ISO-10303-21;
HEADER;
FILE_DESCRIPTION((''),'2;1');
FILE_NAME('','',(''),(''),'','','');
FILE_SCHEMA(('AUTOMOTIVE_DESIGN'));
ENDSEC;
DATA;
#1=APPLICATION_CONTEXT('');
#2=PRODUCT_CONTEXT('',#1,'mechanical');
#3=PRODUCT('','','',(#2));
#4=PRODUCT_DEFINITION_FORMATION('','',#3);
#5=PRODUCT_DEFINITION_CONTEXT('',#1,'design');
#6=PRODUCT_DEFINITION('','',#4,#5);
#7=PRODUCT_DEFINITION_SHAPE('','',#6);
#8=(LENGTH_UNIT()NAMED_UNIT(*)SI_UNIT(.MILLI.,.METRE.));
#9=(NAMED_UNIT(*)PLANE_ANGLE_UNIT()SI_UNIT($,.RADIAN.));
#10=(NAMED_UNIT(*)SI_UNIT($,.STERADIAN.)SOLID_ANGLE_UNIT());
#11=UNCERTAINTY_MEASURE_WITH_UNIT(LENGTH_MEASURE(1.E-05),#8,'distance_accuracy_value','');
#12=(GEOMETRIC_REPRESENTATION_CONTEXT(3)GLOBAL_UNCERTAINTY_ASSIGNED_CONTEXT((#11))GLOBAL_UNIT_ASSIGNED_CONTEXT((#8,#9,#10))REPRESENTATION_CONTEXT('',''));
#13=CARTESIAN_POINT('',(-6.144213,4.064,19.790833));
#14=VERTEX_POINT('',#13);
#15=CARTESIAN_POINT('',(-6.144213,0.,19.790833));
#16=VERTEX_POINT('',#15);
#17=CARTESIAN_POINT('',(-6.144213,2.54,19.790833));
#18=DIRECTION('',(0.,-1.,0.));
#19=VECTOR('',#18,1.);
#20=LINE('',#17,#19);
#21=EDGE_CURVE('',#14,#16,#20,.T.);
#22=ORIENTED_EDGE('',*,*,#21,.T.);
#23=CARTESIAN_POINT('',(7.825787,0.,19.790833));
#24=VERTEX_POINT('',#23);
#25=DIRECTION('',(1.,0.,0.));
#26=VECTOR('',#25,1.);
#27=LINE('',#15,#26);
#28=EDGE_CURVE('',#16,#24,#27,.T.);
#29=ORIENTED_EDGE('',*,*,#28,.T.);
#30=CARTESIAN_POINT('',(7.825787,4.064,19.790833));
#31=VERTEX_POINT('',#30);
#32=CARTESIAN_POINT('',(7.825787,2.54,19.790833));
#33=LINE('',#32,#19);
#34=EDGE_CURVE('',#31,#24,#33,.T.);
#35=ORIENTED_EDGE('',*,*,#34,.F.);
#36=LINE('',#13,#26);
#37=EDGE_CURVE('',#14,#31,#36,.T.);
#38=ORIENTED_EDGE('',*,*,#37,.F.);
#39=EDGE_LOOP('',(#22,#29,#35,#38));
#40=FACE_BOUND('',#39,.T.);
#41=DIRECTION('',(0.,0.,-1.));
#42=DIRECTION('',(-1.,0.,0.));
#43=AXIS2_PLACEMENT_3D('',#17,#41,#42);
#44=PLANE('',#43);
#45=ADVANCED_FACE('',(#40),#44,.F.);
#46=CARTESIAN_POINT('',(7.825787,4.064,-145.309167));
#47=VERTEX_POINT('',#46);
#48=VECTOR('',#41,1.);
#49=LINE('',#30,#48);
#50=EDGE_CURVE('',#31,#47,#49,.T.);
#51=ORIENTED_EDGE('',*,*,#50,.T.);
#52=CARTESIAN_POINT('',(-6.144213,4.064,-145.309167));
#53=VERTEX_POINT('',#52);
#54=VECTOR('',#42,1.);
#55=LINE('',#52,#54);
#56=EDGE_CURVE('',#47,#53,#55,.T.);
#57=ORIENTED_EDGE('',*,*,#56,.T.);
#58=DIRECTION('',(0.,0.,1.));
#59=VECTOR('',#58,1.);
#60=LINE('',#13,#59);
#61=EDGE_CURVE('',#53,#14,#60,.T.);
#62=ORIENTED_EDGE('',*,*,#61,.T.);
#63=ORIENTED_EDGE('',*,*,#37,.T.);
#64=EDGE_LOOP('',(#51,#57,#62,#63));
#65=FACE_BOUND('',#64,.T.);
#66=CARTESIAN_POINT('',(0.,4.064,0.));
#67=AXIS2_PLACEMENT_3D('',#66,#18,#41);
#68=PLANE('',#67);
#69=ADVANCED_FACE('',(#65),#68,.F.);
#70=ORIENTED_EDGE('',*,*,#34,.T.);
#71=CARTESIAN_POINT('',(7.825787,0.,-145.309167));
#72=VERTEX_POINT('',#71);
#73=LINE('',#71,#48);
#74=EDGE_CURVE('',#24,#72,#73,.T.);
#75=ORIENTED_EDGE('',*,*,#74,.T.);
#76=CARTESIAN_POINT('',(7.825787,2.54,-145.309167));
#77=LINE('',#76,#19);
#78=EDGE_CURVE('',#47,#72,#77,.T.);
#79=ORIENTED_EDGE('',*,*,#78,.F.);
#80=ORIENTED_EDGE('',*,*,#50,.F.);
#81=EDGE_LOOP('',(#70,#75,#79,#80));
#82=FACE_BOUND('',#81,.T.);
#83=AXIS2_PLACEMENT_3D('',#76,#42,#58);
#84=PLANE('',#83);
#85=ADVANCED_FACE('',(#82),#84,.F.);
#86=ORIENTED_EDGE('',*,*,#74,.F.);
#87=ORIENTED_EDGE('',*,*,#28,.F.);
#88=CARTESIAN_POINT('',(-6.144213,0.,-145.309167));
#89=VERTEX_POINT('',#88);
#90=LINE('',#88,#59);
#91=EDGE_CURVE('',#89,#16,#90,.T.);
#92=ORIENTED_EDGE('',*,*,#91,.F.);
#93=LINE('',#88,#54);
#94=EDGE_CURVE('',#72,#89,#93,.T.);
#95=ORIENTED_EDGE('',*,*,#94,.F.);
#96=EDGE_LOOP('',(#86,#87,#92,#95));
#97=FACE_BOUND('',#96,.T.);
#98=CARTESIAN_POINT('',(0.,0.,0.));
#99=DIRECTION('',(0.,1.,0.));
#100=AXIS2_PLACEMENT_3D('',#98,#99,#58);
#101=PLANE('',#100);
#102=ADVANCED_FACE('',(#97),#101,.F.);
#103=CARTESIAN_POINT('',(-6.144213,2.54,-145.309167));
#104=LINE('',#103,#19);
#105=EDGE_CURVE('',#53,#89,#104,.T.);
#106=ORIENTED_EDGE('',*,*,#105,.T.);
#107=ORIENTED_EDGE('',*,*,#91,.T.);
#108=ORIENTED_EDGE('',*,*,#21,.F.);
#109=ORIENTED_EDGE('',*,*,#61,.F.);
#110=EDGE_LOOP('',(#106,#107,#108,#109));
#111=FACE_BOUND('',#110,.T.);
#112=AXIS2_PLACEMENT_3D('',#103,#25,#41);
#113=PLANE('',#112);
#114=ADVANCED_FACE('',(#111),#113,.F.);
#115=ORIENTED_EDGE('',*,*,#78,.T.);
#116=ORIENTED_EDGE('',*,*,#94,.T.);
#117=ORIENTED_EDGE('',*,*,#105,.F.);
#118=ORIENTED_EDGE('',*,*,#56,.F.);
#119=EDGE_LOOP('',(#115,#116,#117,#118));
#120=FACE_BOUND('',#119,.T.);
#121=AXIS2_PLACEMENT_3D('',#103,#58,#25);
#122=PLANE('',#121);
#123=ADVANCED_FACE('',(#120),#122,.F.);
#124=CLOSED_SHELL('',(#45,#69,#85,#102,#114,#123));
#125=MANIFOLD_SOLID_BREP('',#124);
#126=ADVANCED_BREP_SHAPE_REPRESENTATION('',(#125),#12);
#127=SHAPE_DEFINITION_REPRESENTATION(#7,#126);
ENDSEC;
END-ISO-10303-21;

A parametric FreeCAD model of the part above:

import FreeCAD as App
import Part
import Sketcher
from FreeCAD import Vector
Q = App.Units.Quantity

doc = App.newDocument("Part")
params = doc.addObject("Spreadsheet::Sheet", "Params")
for row, (alias, value) in enumerate([
    ("sketch1_height", "6.5 in"),
    ("sketch1_width", "0.55 in"),
    ("pad1_length", "0.1 in"),
    ("sketch2_height", "6.5 in"),
    ("sketch2_width", "0.55 in"),
    ("pad2_length", "0.06 in"),
], start=1):
    params.set(f"A{row}", alias)
    params.set(f"B{row}", "=" + value)
    params.setAlias(f"B{row}", alias)

body = doc.addObject("PartDesign::Body", "Body")

# Sketch on XZ plane
sketch1 = body.newObject("Sketcher::SketchObject", "Sketch")
sketch1.AttachmentSupport = (doc.getObject("XZ_Plane"), [""])
sketch1.MapMode = "FlatFace"
sketch1.addGeometry([
    Part.LineSegment(Vector(-6, -145, 0), Vector(-6, 20, 0)),
    Part.LineSegment(Vector(-6, 20, 0), Vector(8, 20, 0)),
    Part.LineSegment(Vector(8, 20, 0), Vector(8, -145, 0)),
    Part.LineSegment(Vector(8, -145, 0), Vector(-6, -145, 0)),
], False)
sketch1.addConstraint([
    Sketcher.Constraint("Coincident", 0, 2, 1, 1),
    Sketcher.Constraint("Coincident", 1, 2, 2, 1),
    Sketcher.Constraint("Coincident", 2, 2, 3, 1),
    Sketcher.Constraint("Coincident", 3, 2, 0, 1),
    Sketcher.Constraint("Vertical", 0),
    Sketcher.Constraint("Horizontal", 1),
    Sketcher.Constraint("Vertical", 2),
    Sketcher.Constraint("Horizontal", 3),
    Sketcher.Constraint("DistanceY", 0, 1, 0, 2, Q("6.5 in")),
    Sketcher.Constraint("DistanceX", 1, 1, 1, 2, Q("0.55 in")),
    Sketcher.Constraint("DistanceX", 0, 2, -1, 1, Q("6.144213 mm")),
    Sketcher.Constraint("DistanceY", -1, 1, 0, 2, Q("19.790833 mm")),
])
sketch1.setExpression("Constraints[8]", "Params.sketch1_height")
sketch1.setExpression("Constraints[9]", "Params.sketch1_width")
pad1 = body.newObject("PartDesign::Pad", "Pad")
pad1.Profile = sketch1
pad1.setExpression("Length", "Params.pad1_length")
pad1.Reversed = True

# Sketch on XZ plane
sketch2 = body.newObject("Sketcher::SketchObject", "Sketch001")
sketch2.AttachmentSupport = (doc.getObject("XZ_Plane"), [""])
sketch2.MapMode = "FlatFace"
sketch2.AttachmentOffset = App.Placement(Vector(0, 0, -0.1 * 25.4), App.Rotation())
sketch2.addGeometry([
    Part.LineSegment(Vector(-6, -145, 0), Vector(-6, 20, 0)),
    Part.LineSegment(Vector(-6, 20, 0), Vector(8, 20, 0)),
    Part.LineSegment(Vector(8, 20, 0), Vector(8, -145, 0)),
    Part.LineSegment(Vector(8, -145, 0), Vector(-6, -145, 0)),
], False)
sketch2.addConstraint([
    Sketcher.Constraint("Coincident", 0, 2, 1, 1),
    Sketcher.Constraint("Coincident", 1, 2, 2, 1),
    Sketcher.Constraint("Coincident", 2, 2, 3, 1),
    Sketcher.Constraint("Coincident", 3, 2, 0, 1),
    Sketcher.Constraint("Vertical", 0),
    Sketcher.Constraint("Horizontal", 1),
    Sketcher.Constraint("Vertical", 2),
    Sketcher.Constraint("Horizontal", 3),
    Sketcher.Constraint("DistanceY", 0, 1, 0, 2, Q("6.5 in")),
    Sketcher.Constraint("DistanceX", 1, 1, 1, 2, Q("0.55 in")),
    Sketcher.Constraint("DistanceX", 0, 2, -1, 1, Q("6.144213 mm")),
    Sketcher.Constraint("DistanceY", -1, 1, 0, 2, Q("19.790833 mm")),
])
sketch2.setExpression("Constraints[8]", "Params.sketch2_height")
sketch2.setExpression("Constraints[9]", "Params.sketch2_width")
pad2 = body.newObject("PartDesign::Pad", "Pad001")
pad2.Profile = sketch2
pad2.setExpression("Length", "Params.pad2_length")
pad2.Reversed = True

doc.recompute()
